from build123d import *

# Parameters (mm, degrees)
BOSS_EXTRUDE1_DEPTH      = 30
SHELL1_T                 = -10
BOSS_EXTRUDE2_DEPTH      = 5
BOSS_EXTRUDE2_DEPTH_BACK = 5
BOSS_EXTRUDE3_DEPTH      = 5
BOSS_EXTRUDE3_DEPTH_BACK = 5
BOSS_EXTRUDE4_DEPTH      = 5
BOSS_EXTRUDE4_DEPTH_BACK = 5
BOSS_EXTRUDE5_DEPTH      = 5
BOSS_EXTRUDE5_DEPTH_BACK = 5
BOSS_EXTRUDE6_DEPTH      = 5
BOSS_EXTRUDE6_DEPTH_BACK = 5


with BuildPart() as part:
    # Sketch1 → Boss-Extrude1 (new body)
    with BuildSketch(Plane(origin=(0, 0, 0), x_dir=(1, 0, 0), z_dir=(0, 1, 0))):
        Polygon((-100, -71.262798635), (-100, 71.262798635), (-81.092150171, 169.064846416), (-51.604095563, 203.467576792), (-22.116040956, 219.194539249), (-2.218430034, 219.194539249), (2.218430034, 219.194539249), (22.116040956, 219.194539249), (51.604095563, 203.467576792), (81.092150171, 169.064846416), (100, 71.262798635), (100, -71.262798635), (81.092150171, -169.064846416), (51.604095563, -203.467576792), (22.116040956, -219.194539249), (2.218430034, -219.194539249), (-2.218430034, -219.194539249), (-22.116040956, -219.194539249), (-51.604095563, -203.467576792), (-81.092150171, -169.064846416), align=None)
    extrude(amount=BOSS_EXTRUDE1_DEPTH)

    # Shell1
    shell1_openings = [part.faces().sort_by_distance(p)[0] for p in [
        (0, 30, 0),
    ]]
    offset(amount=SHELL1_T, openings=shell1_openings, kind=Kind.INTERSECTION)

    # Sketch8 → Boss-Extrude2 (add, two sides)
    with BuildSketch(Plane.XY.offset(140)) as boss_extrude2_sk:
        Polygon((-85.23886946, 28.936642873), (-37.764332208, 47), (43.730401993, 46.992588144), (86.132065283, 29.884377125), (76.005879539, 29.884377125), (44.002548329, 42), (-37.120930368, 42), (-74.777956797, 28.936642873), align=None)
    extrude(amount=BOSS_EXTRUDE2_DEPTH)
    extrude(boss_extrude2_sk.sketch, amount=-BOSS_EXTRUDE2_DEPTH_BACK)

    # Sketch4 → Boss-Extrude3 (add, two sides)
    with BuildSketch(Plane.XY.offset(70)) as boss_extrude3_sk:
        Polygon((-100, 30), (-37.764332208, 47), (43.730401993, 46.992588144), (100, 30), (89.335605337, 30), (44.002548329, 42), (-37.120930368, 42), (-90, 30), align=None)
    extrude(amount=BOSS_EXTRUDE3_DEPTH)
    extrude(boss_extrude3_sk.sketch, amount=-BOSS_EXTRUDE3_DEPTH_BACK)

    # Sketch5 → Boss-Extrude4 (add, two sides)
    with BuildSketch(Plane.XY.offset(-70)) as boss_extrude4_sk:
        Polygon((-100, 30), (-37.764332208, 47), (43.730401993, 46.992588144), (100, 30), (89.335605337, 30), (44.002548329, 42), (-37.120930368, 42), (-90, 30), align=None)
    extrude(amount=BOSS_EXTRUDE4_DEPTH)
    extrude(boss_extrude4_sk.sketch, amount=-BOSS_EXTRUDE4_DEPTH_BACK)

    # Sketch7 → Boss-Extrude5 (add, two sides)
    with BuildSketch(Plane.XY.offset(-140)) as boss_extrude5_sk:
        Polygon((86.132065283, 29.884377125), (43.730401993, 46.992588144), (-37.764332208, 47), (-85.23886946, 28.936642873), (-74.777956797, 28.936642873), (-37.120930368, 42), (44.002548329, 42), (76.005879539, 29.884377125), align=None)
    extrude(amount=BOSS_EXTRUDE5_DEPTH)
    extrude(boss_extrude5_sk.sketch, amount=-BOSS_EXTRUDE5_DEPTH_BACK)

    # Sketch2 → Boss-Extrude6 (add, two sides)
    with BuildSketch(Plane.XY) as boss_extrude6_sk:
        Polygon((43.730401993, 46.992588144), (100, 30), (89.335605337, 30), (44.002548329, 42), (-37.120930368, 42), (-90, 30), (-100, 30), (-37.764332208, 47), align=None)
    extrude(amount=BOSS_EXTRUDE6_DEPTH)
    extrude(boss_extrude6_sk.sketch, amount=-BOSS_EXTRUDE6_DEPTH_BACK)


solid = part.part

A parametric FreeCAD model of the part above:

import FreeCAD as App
import Part
import Sketcher

V = App.Vector


def faces_at(feature, points):
    """Names of the faces that lie closest to the given points."""
    faces = feature.Shape.Faces
    near = lambda p: min(range(len(faces)), key=lambda i: faces[i].distToShape(Part.Vertex(*p))[0])
    return sorted({f"Face{near(p) + 1}" for p in points})

doc = App.newDocument("Part")
body = doc.addObject("PartDesign::Body", "Body")

# Sketch on XZ plane
sketch1 = body.newObject("Sketcher::SketchObject", "Sketch")
sketch1.AttachmentSupport = (doc.getObject("XZ_Plane"), [""])
sketch1.MapMode = "FlatFace"
sketch1.addGeometry([
    Part.LineSegment(V(-100, -71, 0), V(-100, 71, 0)),  # 0
    Part.LineSegment(V(-100, 71, 0), V(-81, 169, 0)),  # 1
    Part.LineSegment(V(-81, 169, 0), V(-52, 203, 0)),  # 2
    Part.LineSegment(V(-52, 203, 0), V(-22, 219, 0)),  # 3
    Part.LineSegment(V(-22, 219, 0), V(22, 219, 0)),  # 4
    Part.LineSegment(V(22, 219, 0), V(52, 203, 0)),  # 5
    Part.LineSegment(V(52, 203, 0), V(81, 169, 0)),  # 6
    Part.LineSegment(V(81, 169, 0), V(100, 71, 0)),  # 7
    Part.LineSegment(V(100, 71, 0), V(100, -71, 0)),  # 8
    Part.LineSegment(V(100, -71, 0), V(81, -169, 0)),  # 9
    Part.LineSegment(V(81, -169, 0), V(52, -203, 0)),  # 10
    Part.LineSegment(V(52, -203, 0), V(22, -219, 0)),  # 11
    Part.LineSegment(V(22, -219, 0), V(-22, -219, 0)),  # 12
    Part.LineSegment(V(-22, -219, 0), V(-52, -203, 0)),  # 13
    Part.LineSegment(V(-52, -203, 0), V(-81, -169, 0)),  # 14
    Part.LineSegment(V(-81, -169, 0), V(-100, -71, 0)),  # 15
], False)
sketch1.addConstraint([
    Sketcher.Constraint("Coincident", 0, 2, 1, 1),
    Sketcher.Constraint("Coincident", 1, 2, 2, 1),
    Sketcher.Constraint("Coincident", 2, 2, 3, 1),
    Sketcher.Constraint("Coincident", 3, 2, 4, 1),
    Sketcher.Constraint("Coincident", 4, 2, 5, 1),
    Sketcher.Constraint("Coincident", 5, 2, 6, 1),
    Sketcher.Constraint("Coincident", 6, 2, 7, 1),
    Sketcher.Constraint("Coincident", 7, 2, 8, 1),
    Sketcher.Constraint("Coincident", 8, 2, 9, 1),
    Sketcher.Constraint("Coincident", 9, 2, 10, 1),
    Sketcher.Constraint("Coincident", 10, 2, 11, 1),
    Sketcher.Constraint("Coincident", 11, 2, 12, 1),
    Sketcher.Constraint("Coincident", 12, 2, 13, 1),
    Sketcher.Constraint("Coincident", 13, 2, 14, 1),
    Sketcher.Constraint("Coincident", 14, 2, 15, 1),
    Sketcher.Constraint("Coincident", 15, 2, 0, 1),
    Sketcher.Constraint("Vertical", 0),
    Sketcher.Constraint("Horizontal", 4),
    Sketcher.Constraint("Vertical", 8),
    Sketcher.Constraint("Horizontal", 12),
    Sketcher.Constraint("Symmetric", 0, 2, 8, 2, -1, 1),
    Sketcher.Constraint("Symmetric", 1, 2, 9, 2, -1, 1),
    Sketcher.Constraint("Symmetric", 2, 2, 10, 2, -1, 1),
    Sketcher.Constraint("Symmetric", 3, 2, 11, 2, -1, 1),
    Sketcher.Constraint("Symmetric", 5, 2, 13, 2, -1, 1),
    Sketcher.Constraint("Symmetric", 6, 2, 14, 2, -1, 1),
    Sketcher.Constraint("Symmetric", 2, 2, 5, 2, -2),
    Sketcher.Constraint("Symmetric", 1, 2, 6, 2, -2),
    Sketcher.Constraint("Parallel", 5, 13),
    Sketcher.Constraint("Parallel", 7, 15),
    Sketcher.Constraint("Horizontal", 0, 2, 7, 2),
    Sketcher.Constraint("Vertical", 4, 2, 11, 2),
    Sketcher.Constraint("DistanceX", 0, 2, -1, 1, 100.0),
    Sketcher.Constraint("DistanceX", 4, 1, 4, 2, 44.232082),
    Sketcher.Constraint("DistanceY", -1, 1, 0, 2, 71.262799),
    Sketcher.Constraint("DistanceX", 1, 2, 6, 2, 162.1843),
    Sketcher.Constraint("Distance", 2, 45.311072),
    Sketcher.Constraint("DistanceY", -1, 1, 3, 2, 219.194539),
    Sketcher.Constraint("DistanceY", 1, 2, 2, 2, 34.40273),
    Sketcher.Constraint("DistanceY", 0, 2, 2, 2, 132.204778),
])
pad1 = body.newObject("PartDesign::Pad", "Pad")
pad1.Profile = sketch1
pad1.Length = 30
pad1.Reversed = True
doc.recompute()

thickness = body.newObject("PartDesign::Thickness", "Thickness")
thickness.Base = (pad1, faces_at(pad1, [(0, 30, 0)]))
thickness.Value = 10
thickness.Reversed = True
thickness.Join = "Intersection"

# Sketch on XY plane
sketch2 = body.newObject("Sketcher::SketchObject", "Sketch001")
sketch2.AttachmentSupport = (doc.getObject("XY_Plane"), [""])
sketch2.MapMode = "FlatFace"
sketch2.AttachmentOffset = App.Placement(V(0, 0, 140), App.Rotation())
sketch2.addGeometry([
    Part.LineSegment(V(-38, 47, 0), V(-85, 29, 0)),  # 0
    Part.LineSegment(V(-85, 29, 0), V(-75, 29, 0)),  # 1
    Part.LineSegment(V(-75, 29, 0), V(-37, 42, 0)),  # 2
    Part.LineSegment(V(-37, 42, 0), V(44, 42, 0)),  # 3
    Part.LineSegment(V(44, 42, 0), V(76, 30, 0)),  # 4
    Part.LineSegment(V(76, 30, 0), V(86, 30, 0)),  # 5
    Part.LineSegment(V(86, 30, 0), V(44, 47, 0)),  # 6
    Part.LineSegment(V(44, 47, 0), V(-38, 47, 0)),  # 7
], False)
sketch2.addConstraint([
    Sketcher.Constraint("Coincident", 0, 2, 1, 1),
    Sketcher.Constraint("Coincident", 1, 2, 2, 1),
    Sketcher.Constraint("Coincident", 2, 2, 3, 1),
    Sketcher.Constraint("Coincident", 3, 2, 4, 1),
    Sketcher.Constraint("Coincident", 4, 2, 5, 1),
    Sketcher.Constraint("Coincident", 5, 2, 6, 1),
    Sketcher.Constraint("Coincident", 6, 2, 7, 1),
    Sketcher.Constraint("Coincident", 7, 2, 0, 1),
    Sketcher.Constraint("Horizontal", 1),
    Sketcher.Constraint("Horizontal", 3),
    Sketcher.Constraint("Horizontal", 5),
    Sketcher.Constraint("DistanceY", -1, 1, 2, 2, 42.0),
    Sketcher.Constraint("DistanceY", -1, 1, 7, 2, 47.0),
    Sketcher.Constraint("Distance", 4, 34.2199),
    Sketcher.Constraint("DistanceX", 3, 1, 3, 2, 81.123479),
    Sketcher.Constraint("DistanceX", -1, 1, 6, 2, 43.730402),
    Sketcher.Constraint("DistanceX", 7, 2, 2, 2, 0.643402),
    Sketcher.Constraint("Distance", 6, 45.722991),
    Sketcher.Constraint("DistanceX", 1, 1, 1, 2, 10.460913),
    Sketcher.Constraint("DistanceX", 5, 1, 5, 2, 10.126186),
    Sketcher.Constraint("DistanceX", 0, 2, -1, 1, 85.238869),
    Sketcher.Constraint("DistanceX", 2, 2, -1, 1, 37.12093),
    Sketcher.Constraint("DistanceX", -1, 1, 4, 2, 76.00588),
    Sketcher.Constraint("Distance", 0, 50.794848),
])
pad2 = body.newObject("PartDesign::Pad", "Pad001")
pad2.Profile = sketch2
pad2.Type = "TwoLengths"
pad2.Length = 5
pad2.Length2 = 5

# Sketch on XY plane
sketch3 = body.newObject("Sketcher::SketchObject", "Sketch002")
sketch3.AttachmentSupport = (doc.getObject("XY_Plane"), [""])
sketch3.MapMode = "FlatFace"
sketch3.AttachmentOffset = App.Placement(V(0, 0, 70), App.Rotation())
sketch3.addGeometry([
    Part.LineSegment(V(-38, 47, 0), V(-100, 30, 0)),  # 0
    Part.LineSegment(V(-100, 30, 0), V(-90, 30, 0)),  # 1
    Part.LineSegment(V(-90, 30, 0), V(-37, 42, 0)),  # 2
    Part.LineSegment(V(-37, 42, 0), V(44, 42, 0)),  # 3
    Part.LineSegment(V(44, 42, 0), V(89, 30, 0)),  # 4
    Part.LineSegment(V(89, 30, 0), V(100, 30, 0)),  # 5
    Part.LineSegment(V(100, 30, 0), V(44, 47, 0)),  # 6
    Part.LineSegment(V(44, 47, 0), V(-38, 47, 0)),  # 7
], False)
sketch3.addConstraint([
    Sketcher.Constraint("Coincident", 0, 2, 1, 1),
    Sketcher.Constraint("Coincident", 1, 2, 2, 1),
    Sketcher.Constraint("Coincident", 2, 2, 3, 1),
    Sketcher.Constraint("Coincident", 3, 2, 4, 1),
    Sketcher.Constraint("Coincident", 4, 2, 5, 1),
    Sketcher.Constraint("Coincident", 5, 2, 6, 1),
    Sketcher.Constraint("Coincident", 6, 2, 7, 1),
    Sketcher.Constraint("Coincident", 7, 2, 0, 1),
    Sketcher.Constraint("Horizontal", 1),
    Sketcher.Constraint("Horizontal", 3),
    Sketcher.Constraint("Horizontal", 5),
    Sketcher.Constraint("Symmetric", 0, 2, 5, 2, -2),
    Sketcher.Constraint("DistanceX", 1, 1, 1, 2, 10.0),
    Sketcher.Constraint("DistanceX", 0, 2, -1, 1, 100.0),
    Sketcher.Constraint("DistanceY", -1, 1, 0, 2, 30.0),
    Sketcher.Constraint("DistanceY", -1, 1, 2, 2, 42.0),
    Sketcher.Constraint("DistanceY", -1, 1, 7, 2, 47.0),
    Sketcher.Constraint("DistanceX", 3, 1, 3, 2, 81.123479),
    Sketcher.Constraint("DistanceX", -1, 1, 6, 2, 43.730402),
    Sketcher.Constraint("DistanceX", 7, 2, 2, 2, 0.643402),
    Sketcher.Constraint("Distance", 0, 64.515722),
    Sketcher.Constraint("Distance", 6, 58.779382),
    Sketcher.Constraint("DistanceX", 5, 1, 5, 2, 10.664395),
])
pad3 = body.newObject("PartDesign::Pad", "Pad002")
pad3.Profile = sketch3
pad3.Type = "TwoLengths"
pad3.Length = 5
pad3.Length2 = 5

# Sketch on XY plane
sketch4 = body.newObject("Sketcher::SketchObject", "Sketch003")
sketch4.AttachmentSupport = (doc.getObject("XY_Plane"), [""])
sketch4.MapMode = "FlatFace"
sketch4.AttachmentOffset = App.Placement(V(0, 0, -70), App.Rotation())
sketch4.addGeometry([
    Part.LineSegment(V(-38, 47, 0), V(-100, 30, 0)),  # 0
    Part.LineSegment(V(-100, 30, 0), V(-90, 30, 0)),  # 1
    Part.LineSegment(V(-90, 30, 0), V(-37, 42, 0)),  # 2
    Part.LineSegment(V(-37, 42, 0), V(44, 42, 0)),  # 3
    Part.LineSegment(V(44, 42, 0), V(89, 30, 0)),  # 4
    Part.LineSegment(V(89, 30, 0), V(100, 30, 0)),  # 5
    Part.LineSegment(V(100, 30, 0), V(44, 47, 0)),  # 6
    Part.LineSegment(V(44, 47, 0), V(-38, 47, 0)),  # 7
], False)
sketch4.addConstraint([
    Sketcher.Constraint("Coincident", 0, 2, 1, 1),
    Sketcher.Constraint("Coincident", 1, 2, 2, 1),
    Sketcher.Constraint("Coincident", 2, 2, 3, 1),
    Sketcher.Constraint("Coincident", 3, 2, 4, 1),
    Sketcher.Constraint("Coincident", 4, 2, 5, 1),
    Sketcher.Constraint("Coincident", 5, 2, 6, 1),
    Sketcher.Constraint("Coincident", 6, 2, 7, 1),
    Sketcher.Constraint("Coincident", 7, 2, 0, 1),
    Sketcher.Constraint("Horizontal", 1),
    Sketcher.Constraint("Horizontal", 3),
    Sketcher.Constraint("Horizontal", 5),
    Sketcher.Constraint("Symmetric", 0, 2, 5, 2, -2),
    Sketcher.Constraint("DistanceX", 1, 1, 1, 2, 10.0),
    Sketcher.Constraint("DistanceX", 0, 2, -1, 1, 100.0),
    Sketcher.Constraint("DistanceY", -1, 1, 0, 2, 30.0),
    Sketcher.Constraint("DistanceY", -1, 1, 2, 2, 42.0),
    Sketcher.Constraint("DistanceY", -1, 1, 7, 2, 47.0),
    Sketcher.Constraint("DistanceX", 3, 1, 3, 2, 81.123479),
    Sketcher.Constraint("DistanceX", -1, 1, 6, 2, 43.730402),
    Sketcher.Constraint("DistanceX", 7, 2, 2, 2, 0.643402),
    Sketcher.Constraint("Distance", 0, 64.515722),
    Sketcher.Constraint("Distance", 6, 58.779382),
    Sketcher.Constraint("DistanceX", 5, 1, 5, 2, 10.664395),
])
pad4 = body.newObject("PartDesign::Pad", "Pad003")
pad4.Profile = sketch4
pad4.Type = "TwoLengths"
pad4.Length = 5
pad4.Length2 = 5

# Sketch on XY plane
sketch5 = body.newObject("Sketcher::SketchObject", "Sketch004")
sketch5.AttachmentSupport = (doc.getObject("XY_Plane"), [""])
sketch5.MapMode = "FlatFace"
sketch5.AttachmentOffset = App.Placement(V(0, 0, -140), App.Rotation())
sketch5.addGeometry([
    Part.LineSegment(V(86.132065, 29.884377, 0), V(43.730402, 46.992588, 0)),  # 0
    Part.LineSegment(V(43.730402, 46.992588, 0), V(-37.764332, 47, 0)),  # 1
    Part.LineSegment(V(-37.764332, 47, 0), V(-85.238869, 28.936643, 0)),  # 2
    Part.LineSegment(V(-85.238869, 28.936643, 0), V(-74.777957, 28.936643, 0)),  # 3
    Part.LineSegment(V(-74.777957, 28.936643, 0), V(-37.12093, 42, 0)),  # 4
    Part.LineSegment(V(-37.12093, 42, 0), V(44.002548, 42, 0)),  # 5
    Part.LineSegment(V(44.002548, 42, 0), V(76.00588, 29.884377, 0)),  # 6
    Part.LineSegment(V(76.00588, 29.884377, 0), V(86.132065, 29.884377, 0)),  # 7
], False)
sketch5.addConstraint([
    Sketcher.Constraint("Coincident", 0, 2, 1, 1),
    Sketcher.Constraint("Coincident", 1, 2, 2, 1),
    Sketcher.Constraint("Coincident", 2, 2, 3, 1),
    Sketcher.Constraint("Coincident", 3, 2, 4, 1),
    Sketcher.Constraint("Coincident", 4, 2, 5, 1),
    Sketcher.Constraint("Coincident", 5, 2, 6, 1),
    Sketcher.Constraint("Coincident", 6, 2, 7, 1),
    Sketcher.Constraint("Coincident", 7, 2, 0, 1),
    Sketcher.Constraint("Horizontal", 3),
    Sketcher.Constraint("Horizontal", 5),
    Sketcher.Constraint("Horizontal", 7),
    Sketcher.Constraint("DistanceY", -1, 1, 1, 2, 47.0),
    Sketcher.Constraint("DistanceY", -1, 1, 4, 2, 42.0),
    Sketcher.Constraint("Distance", 6, 34.2199),
    Sketcher.Constraint("DistanceX", 5, 1, 5, 2, 81.123479),
    Sketcher.Constraint("DistanceX", -1, 1, 0, 2, 43.730402),
    Sketcher.Constraint("DistanceX", 1, 2, 4, 2, 0.643402),
    Sketcher.Constraint("Distance", 0, 45.722991),
    Sketcher.Constraint("DistanceX", 3, 1, 3, 2, 10.460913),
    Sketcher.Constraint("DistanceX", 7, 1, 7, 2, 10.126186),
    Sketcher.Constraint("DistanceY", -1, 1, 0, 2, 46.992588),
    Sketcher.Constraint("DistanceX", 2, 2, -1, 1, 85.238869),
    Sketcher.Constraint("DistanceX", 4, 2, -1, 1, 37.12093),
    Sketcher.Constraint("Distance", 2, 50.794848),
])
pad5 = body.newObject("PartDesign::Pad", "Pad004")
pad5.Profile = sketch5
pad5.Type = "TwoLengths"
pad5.Length = 5
pad5.Length2 = 5

# Sketch on XY plane
sketch6 = body.newObject("Sketcher::SketchObject", "Sketch005")
sketch6.AttachmentSupport = (doc.getObject("XY_Plane"), [""])
sketch6.MapMode = "FlatFace"
sketch6.addGeometry([
    Part.LineSegment(V(100, 30, 0), V(44, 47, 0)),  # 0
    Part.LineSegment(V(44, 47, 0), V(-38, 47, 0)),  # 1
    Part.LineSegment(V(-38, 47, 0), V(-100, 30, 0)),  # 2
    Part.LineSegment(V(-100, 30, 0), V(-90, 30, 0)),  # 3
    Part.LineSegment(V(-90, 30, 0), V(-37, 42, 0)),  # 4
    Part.LineSegment(V(-37, 42, 0), V(44, 42, 0)),  # 5
    Part.LineSegment(V(44, 42, 0), V(89, 30, 0)),  # 6
    Part.LineSegment(V(89, 30, 0), V(100, 30, 0)),  # 7
], False)
sketch6.addConstraint([
    Sketcher.Constraint("Coincident", 0, 2, 1, 1),
    Sketcher.Constraint("Coincident", 1, 2, 2, 1),
    Sketcher.Constraint("Coincident", 2, 2, 3, 1),
    Sketcher.Constraint("Coincident", 3, 2, 4, 1),
    Sketcher.Constraint("Coincident", 4, 2, 5, 1),
    Sketcher.Constraint("Coincident", 5, 2, 6, 1),
    Sketcher.Constraint("Coincident", 6, 2, 7, 1),
    Sketcher.Constraint("Coincident", 7, 2, 0, 1),
    Sketcher.Constraint("Horizontal", 3),
    Sketcher.Constraint("Horizontal", 5),
    Sketcher.Constraint("Horizontal", 7),
    Sketcher.Constraint("Symmetric", 2, 2, 7, 2, -2),
    Sketcher.Constraint("DistanceX", 3, 1, 3, 2, 10.0),
    Sketcher.Constraint("DistanceY", -1, 1, 1, 2, 47.0),
    Sketcher.Constraint("DistanceX", 2, 2, -1, 1, 100.0),
    Sketcher.Constraint("DistanceY", -1, 1, 2, 2, 30.0),
    Sketcher.Constraint("DistanceY", -1, 1, 4, 2, 42.0),
    Sketcher.Constraint("DistanceX", 5, 1, 5, 2, 81.123479),
    Sketcher.Constraint("DistanceX", -1, 1, 0, 2, 43.730402),
    Sketcher.Constraint("DistanceX", 1, 2, 4, 2, 0.643402),
    Sketcher.Constraint("Distance", 0, 58.779382),
    Sketcher.Constraint("Distance", 2, 64.515722),
    Sketcher.Constraint("DistanceX", 7, 1, 7, 2, 10.664395),
])
pad6 = body.newObject("PartDesign::Pad", "Pad005")
pad6.Profile = sketch6
pad6.Type = "TwoLengths"
pad6.Length = 5
pad6.Length2 = 5

doc.recompute()
